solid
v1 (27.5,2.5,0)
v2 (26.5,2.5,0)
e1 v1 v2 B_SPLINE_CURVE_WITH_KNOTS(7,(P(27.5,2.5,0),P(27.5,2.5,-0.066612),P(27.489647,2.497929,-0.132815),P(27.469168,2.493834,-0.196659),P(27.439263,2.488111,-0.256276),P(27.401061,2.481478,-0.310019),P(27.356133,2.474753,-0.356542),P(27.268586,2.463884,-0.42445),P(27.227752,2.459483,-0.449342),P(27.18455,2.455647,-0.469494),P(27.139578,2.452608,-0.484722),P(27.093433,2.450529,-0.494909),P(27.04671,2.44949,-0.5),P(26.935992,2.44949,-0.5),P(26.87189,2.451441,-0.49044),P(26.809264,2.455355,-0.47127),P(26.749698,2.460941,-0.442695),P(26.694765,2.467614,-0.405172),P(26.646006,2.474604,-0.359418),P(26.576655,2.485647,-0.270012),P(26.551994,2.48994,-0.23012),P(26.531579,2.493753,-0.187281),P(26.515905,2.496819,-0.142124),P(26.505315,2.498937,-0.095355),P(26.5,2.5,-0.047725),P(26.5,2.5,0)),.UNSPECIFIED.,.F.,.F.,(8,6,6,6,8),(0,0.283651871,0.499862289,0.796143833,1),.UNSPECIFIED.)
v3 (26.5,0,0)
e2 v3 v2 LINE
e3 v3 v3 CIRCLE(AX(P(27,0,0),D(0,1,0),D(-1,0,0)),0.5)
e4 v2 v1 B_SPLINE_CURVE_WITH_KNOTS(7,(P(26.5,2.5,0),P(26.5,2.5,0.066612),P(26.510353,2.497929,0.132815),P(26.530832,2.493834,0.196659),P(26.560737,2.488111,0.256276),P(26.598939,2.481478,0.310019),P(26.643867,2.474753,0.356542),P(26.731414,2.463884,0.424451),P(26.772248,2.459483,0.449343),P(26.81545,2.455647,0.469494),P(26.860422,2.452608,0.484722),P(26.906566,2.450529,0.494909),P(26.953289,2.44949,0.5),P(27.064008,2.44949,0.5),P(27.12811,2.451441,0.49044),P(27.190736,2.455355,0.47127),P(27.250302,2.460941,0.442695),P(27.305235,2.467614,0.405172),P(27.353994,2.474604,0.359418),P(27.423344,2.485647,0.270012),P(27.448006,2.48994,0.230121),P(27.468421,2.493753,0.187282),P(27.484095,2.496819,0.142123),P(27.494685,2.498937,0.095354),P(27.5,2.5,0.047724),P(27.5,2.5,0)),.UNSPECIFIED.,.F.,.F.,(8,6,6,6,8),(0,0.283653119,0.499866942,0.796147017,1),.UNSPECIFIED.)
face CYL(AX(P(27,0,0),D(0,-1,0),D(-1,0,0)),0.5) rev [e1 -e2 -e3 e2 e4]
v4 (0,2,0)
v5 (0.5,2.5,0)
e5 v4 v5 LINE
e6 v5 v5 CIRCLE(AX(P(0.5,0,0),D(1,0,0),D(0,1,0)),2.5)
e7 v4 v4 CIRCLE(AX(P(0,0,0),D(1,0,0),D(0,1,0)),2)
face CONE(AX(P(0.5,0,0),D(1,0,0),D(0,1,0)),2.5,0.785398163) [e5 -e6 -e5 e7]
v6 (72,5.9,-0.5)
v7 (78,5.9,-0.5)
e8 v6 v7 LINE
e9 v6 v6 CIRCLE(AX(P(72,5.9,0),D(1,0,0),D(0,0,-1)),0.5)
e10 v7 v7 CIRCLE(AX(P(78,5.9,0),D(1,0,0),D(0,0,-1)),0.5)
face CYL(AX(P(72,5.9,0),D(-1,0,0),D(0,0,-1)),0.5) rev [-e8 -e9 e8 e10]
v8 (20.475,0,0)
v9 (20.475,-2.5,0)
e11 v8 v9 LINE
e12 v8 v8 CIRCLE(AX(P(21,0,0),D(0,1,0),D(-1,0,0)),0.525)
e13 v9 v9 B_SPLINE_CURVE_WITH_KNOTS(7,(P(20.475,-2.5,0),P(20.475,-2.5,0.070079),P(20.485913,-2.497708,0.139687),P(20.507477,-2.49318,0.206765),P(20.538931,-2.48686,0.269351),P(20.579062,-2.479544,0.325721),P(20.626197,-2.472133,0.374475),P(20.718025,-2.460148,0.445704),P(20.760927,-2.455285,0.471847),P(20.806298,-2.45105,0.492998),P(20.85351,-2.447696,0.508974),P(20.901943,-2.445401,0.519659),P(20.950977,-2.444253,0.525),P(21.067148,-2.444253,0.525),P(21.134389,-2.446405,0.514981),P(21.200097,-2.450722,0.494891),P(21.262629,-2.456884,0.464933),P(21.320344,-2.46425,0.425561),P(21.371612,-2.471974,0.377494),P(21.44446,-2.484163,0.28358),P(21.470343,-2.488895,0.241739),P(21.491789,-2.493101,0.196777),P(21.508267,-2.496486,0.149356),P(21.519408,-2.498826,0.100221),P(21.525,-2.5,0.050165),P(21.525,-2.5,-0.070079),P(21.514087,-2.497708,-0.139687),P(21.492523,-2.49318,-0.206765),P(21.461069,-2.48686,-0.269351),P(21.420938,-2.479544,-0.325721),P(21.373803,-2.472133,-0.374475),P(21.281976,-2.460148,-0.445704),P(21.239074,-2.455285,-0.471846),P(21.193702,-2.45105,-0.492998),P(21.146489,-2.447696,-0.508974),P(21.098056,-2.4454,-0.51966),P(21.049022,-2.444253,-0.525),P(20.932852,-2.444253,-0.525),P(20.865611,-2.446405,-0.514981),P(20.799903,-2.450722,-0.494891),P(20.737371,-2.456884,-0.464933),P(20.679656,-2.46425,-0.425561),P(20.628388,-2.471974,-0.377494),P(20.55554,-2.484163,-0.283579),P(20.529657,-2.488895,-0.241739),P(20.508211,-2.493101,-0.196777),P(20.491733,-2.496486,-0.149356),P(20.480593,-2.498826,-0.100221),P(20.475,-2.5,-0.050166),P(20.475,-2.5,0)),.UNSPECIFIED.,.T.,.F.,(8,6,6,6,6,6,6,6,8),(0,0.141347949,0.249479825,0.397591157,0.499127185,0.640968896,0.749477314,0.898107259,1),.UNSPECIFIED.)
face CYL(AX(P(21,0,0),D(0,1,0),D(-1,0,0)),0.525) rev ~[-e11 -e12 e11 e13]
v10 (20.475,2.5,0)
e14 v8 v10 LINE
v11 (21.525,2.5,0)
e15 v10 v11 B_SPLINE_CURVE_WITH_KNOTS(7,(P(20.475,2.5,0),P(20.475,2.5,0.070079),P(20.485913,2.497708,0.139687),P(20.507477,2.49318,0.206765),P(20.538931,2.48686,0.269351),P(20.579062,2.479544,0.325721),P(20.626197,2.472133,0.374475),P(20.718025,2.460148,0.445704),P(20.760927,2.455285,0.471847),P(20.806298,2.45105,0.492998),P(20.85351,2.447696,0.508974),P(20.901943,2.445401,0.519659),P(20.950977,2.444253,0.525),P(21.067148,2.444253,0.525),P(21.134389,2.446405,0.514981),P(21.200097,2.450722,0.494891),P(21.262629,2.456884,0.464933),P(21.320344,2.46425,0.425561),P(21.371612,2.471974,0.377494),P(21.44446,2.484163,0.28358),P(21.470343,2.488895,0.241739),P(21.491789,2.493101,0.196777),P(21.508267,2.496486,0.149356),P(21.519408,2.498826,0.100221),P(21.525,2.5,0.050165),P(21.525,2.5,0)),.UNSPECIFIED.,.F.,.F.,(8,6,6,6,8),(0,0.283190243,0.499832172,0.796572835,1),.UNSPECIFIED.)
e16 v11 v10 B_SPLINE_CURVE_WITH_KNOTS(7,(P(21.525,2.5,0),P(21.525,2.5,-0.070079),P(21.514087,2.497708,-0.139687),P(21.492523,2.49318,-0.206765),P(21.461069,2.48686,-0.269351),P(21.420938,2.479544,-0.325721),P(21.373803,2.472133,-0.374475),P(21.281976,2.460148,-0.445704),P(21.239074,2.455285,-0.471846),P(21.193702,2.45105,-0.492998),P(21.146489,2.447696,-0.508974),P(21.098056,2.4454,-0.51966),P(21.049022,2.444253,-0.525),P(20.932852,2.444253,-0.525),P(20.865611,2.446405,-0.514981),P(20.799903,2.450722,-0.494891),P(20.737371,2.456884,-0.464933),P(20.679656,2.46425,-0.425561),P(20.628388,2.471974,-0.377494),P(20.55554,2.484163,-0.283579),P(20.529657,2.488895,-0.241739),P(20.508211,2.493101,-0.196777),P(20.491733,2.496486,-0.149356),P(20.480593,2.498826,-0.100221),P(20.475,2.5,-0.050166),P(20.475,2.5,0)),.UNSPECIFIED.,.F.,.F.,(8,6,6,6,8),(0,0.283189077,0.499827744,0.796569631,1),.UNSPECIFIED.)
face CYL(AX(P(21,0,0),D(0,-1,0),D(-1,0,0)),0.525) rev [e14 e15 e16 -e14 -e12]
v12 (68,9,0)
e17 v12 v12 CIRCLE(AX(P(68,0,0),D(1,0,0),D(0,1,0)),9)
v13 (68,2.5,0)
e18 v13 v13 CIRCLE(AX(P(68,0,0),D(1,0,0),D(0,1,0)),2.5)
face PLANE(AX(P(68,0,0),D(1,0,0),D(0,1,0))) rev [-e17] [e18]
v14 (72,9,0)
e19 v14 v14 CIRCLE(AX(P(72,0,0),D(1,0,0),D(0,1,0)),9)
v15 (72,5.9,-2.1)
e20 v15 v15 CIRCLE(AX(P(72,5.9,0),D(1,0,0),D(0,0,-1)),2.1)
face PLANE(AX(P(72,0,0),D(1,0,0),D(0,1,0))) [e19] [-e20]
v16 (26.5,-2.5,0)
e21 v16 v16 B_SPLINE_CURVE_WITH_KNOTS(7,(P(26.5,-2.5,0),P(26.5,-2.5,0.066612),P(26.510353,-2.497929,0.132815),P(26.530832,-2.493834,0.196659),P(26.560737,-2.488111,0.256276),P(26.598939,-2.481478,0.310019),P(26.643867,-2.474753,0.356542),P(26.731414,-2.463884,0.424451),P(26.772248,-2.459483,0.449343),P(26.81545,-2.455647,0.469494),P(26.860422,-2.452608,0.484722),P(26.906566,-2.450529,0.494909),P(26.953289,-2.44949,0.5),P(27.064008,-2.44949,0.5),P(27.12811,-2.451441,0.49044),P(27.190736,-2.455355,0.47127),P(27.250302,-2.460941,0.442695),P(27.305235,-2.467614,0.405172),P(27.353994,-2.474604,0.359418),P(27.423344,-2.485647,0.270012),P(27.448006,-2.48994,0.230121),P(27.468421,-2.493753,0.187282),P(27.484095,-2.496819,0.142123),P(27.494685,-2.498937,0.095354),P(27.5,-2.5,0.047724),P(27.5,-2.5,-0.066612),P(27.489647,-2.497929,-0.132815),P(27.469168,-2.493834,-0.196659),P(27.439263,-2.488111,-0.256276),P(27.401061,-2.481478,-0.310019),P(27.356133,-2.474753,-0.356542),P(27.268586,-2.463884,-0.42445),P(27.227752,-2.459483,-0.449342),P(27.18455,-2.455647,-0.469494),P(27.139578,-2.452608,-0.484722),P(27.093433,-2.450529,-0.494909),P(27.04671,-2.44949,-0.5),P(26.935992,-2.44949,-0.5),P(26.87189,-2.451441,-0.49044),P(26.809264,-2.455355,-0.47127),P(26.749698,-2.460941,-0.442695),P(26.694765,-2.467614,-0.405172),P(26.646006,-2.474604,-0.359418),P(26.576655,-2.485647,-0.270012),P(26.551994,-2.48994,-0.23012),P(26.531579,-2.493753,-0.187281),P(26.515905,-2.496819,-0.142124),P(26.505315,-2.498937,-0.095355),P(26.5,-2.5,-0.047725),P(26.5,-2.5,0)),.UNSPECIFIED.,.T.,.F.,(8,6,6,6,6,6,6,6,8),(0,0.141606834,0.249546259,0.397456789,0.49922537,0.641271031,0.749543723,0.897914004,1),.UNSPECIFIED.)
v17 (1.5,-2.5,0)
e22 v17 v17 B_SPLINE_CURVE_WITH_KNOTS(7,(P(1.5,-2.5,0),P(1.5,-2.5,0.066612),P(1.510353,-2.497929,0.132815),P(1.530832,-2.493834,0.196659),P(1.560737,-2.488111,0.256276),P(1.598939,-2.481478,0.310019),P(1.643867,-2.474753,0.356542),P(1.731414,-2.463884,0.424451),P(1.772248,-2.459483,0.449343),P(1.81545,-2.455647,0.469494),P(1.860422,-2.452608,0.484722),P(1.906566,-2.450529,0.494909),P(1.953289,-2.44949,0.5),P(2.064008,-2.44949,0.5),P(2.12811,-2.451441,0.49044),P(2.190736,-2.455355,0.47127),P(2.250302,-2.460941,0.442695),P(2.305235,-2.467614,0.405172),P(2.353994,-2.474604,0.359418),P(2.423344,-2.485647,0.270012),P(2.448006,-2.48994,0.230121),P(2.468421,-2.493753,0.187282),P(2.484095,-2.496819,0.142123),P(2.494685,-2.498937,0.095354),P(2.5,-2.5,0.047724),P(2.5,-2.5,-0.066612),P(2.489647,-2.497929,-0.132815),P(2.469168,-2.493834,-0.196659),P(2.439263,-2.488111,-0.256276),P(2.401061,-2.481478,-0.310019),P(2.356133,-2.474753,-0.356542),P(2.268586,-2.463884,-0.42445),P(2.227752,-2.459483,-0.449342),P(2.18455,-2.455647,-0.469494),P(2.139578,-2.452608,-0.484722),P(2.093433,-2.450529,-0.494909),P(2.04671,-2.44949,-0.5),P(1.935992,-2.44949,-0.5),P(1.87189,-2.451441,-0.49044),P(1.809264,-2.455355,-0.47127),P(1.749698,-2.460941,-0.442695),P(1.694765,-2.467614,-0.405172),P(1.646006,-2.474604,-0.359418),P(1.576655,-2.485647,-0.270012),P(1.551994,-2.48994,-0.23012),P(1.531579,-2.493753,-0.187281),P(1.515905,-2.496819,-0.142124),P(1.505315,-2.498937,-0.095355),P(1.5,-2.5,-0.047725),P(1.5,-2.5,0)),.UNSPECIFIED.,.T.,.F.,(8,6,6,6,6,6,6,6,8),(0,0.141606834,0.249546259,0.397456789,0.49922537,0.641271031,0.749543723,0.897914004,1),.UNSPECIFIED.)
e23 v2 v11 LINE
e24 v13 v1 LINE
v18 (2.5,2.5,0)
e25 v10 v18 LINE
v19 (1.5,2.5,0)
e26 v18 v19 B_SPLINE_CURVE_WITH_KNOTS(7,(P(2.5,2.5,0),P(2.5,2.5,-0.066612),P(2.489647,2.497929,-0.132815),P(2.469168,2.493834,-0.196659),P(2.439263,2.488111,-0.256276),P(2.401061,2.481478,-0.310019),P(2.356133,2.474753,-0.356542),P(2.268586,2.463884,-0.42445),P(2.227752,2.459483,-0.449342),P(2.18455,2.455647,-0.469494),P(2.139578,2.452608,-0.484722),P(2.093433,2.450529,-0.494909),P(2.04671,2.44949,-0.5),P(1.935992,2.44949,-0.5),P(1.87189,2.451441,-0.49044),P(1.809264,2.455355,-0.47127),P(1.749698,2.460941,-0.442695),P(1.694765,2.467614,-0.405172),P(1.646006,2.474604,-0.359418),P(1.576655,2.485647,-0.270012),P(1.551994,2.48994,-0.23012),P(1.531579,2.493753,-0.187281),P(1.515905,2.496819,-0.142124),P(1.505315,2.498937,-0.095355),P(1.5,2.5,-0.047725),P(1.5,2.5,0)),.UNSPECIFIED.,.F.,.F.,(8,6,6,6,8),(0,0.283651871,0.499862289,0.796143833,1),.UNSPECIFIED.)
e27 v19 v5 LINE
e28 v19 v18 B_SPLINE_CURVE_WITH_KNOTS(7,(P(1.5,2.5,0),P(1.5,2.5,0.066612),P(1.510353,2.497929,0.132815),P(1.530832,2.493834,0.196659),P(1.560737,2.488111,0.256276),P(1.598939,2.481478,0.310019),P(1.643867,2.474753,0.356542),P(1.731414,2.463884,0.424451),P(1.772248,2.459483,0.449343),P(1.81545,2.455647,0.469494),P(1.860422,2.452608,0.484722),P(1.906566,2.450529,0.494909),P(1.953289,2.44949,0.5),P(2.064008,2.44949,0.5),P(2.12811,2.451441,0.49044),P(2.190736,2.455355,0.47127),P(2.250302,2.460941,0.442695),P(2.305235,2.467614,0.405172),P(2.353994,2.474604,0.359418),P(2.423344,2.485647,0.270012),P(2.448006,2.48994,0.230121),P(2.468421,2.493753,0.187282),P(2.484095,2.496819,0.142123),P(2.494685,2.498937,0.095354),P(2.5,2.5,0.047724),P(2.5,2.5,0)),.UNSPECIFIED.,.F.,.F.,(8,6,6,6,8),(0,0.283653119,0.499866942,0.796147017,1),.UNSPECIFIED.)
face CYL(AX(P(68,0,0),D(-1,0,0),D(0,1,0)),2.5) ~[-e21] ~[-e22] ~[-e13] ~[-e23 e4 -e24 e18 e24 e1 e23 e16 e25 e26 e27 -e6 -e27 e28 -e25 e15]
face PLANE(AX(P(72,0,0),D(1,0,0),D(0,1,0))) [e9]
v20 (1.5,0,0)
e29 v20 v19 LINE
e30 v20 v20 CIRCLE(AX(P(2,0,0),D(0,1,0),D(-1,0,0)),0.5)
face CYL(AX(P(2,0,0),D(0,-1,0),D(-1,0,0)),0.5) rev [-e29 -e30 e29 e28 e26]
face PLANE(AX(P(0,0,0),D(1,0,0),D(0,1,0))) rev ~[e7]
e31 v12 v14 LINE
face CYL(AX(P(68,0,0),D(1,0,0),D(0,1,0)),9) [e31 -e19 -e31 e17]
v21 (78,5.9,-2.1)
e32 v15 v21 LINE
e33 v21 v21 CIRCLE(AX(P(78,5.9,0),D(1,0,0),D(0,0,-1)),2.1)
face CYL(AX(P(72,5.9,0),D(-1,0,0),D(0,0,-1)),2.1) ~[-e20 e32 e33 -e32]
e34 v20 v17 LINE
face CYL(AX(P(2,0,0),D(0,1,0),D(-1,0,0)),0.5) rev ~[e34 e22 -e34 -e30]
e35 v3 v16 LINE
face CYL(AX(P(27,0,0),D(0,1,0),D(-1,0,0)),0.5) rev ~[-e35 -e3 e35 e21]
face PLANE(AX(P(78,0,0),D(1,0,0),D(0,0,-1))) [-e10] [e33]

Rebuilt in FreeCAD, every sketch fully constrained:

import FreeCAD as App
import Part
import Sketcher
from FreeCAD import Vector
Q = App.Units.Quantity


def edges_at(feature, points):
    """Names of the edges that pass closest to the given points."""
    edges = feature.Shape.Edges
    near = lambda p: min(range(len(edges)), key=lambda i: edges[i].distToShape(Part.Vertex(*p))[0])
    return sorted({f"Edge{near(p) + 1}" for p in points})


def add_polygon(sketch, points):
    """Adds a closed chain of lines whose ends are joined by coincident constraints."""
    first, n = sketch.GeometryCount, len(points)
    for a, b in zip(points, points[1:] + points[:1]):
        sketch.addGeometry(Part.LineSegment(App.Vector(*a, 0), App.Vector(*b, 0)), False)
    for i in range(n):
        sketch.addConstraint(Sketcher.Constraint("Coincident", first + i, 2, first + (i + 1) % n, 1))

doc = App.newDocument("Part")
params = doc.addObject("Spreadsheet::Sheet", "Params")
for row, (alias, value) in enumerate([
    ("sketch1_width", "72 mm"),
    ("sketch1_width2", "4 mm"),
    ("sketch1_height", "9 mm"),
    ("sketch1_height2", "2.5 mm"),
    ("revolution_angle", "360 deg"),
    ("chamfer_size", "0.5 mm"),
    ("sketch2_diameter", "1 mm"),
    ("sketch2_diameter2", "4.2 mm"),
    ("pad1_length", "6 mm"),
    ("sketch3_diameter", "1 mm"),
    ("pocket1_length", "10 mm"),
    ("sketch4_diameter", "1 mm"),
    ("pocket2_length", "10 mm"),
    ("sketch5_diameter", "1.05 mm"),
    ("pocket3_length", "10 mm"),
], start=1):
    params.set(f"A{row}", alias)
    params.set(f"B{row}", "=" + value)
    params.setAlias(f"B{row}", alias)

body = doc.addObject("PartDesign::Body", "Body")

# Sketch on XY plane
sketch1 = body.newObject("Sketcher::SketchObject", "Sketch")
sketch1.AttachmentSupport = (doc.getObject("XY_Plane"), [""])
sketch1.MapMode = "FlatFace"
add_polygon(sketch1, [(0, 2.5), (0, 0), (72, 0), (72, 9), (68, 9), (68, 2.5)])  # lines 0-5
sketch1.addConstraint([
    Sketcher.Constraint("Vertical", 0),
    Sketcher.Constraint("Horizontal", 1),
    Sketcher.Constraint("Vertical", 2),
    Sketcher.Constraint("Horizontal", 3),
    Sketcher.Constraint("Vertical", 4),
    Sketcher.Constraint("Horizontal", 5),
    Sketcher.Constraint("Coincident", 0, 2, -1, 1),
    Sketcher.Constraint("DistanceX", 1, 1, 1, 2, Q("72 mm")),
    Sketcher.Constraint("DistanceX", 3, 2, 3, 1, Q("4 mm")),
    Sketcher.Constraint("DistanceY", 2, 1, 2, 2, Q("9 mm")),
    Sketcher.Constraint("DistanceY", 0, 2, 0, 1, Q("2.5 mm")),
])
sketch1.setExpression("Constraints[13]", "Params.sketch1_width")
sketch1.setExpression("Constraints[14]", "Params.sketch1_width2")
sketch1.setExpression("Constraints[15]", "Params.sketch1_height")
sketch1.setExpression("Constraints[16]", "Params.sketch1_height2")
revolution = body.newObject("PartDesign::Revolution", "Revolution")
revolution.Profile = sketch1
revolution.ReferenceAxis = (sketch1, ["H_Axis"])
revolution.setExpression("Angle", "Params.revolution_angle")
doc.recompute()

chamfer = body.newObject("PartDesign::Chamfer", "Chamfer")
chamfer.Base = (revolution, edges_at(revolution, [(0, -2.5, 0)]))
chamfer.setExpression("Size", "Params.chamfer_size")

# Sketch on YZ plane
sketch2 = body.newObject("Sketcher::SketchObject", "Sketch001")
sketch2.AttachmentSupport = (doc.getObject("YZ_Plane"), [""])
sketch2.MapMode = "FlatFace"
sketch2.AttachmentOffset = App.Placement(Vector(0, 0, 72), App.Rotation())
sketch2.addGeometry([
    Part.Circle(Vector(5.9, 0, 0), Vector(0, 0, 1), 2.1),
    Part.Circle(Vector(5.9, 0, 0), Vector(0, 0, 1), 0.5),
], False)
sketch2.addConstraint([
    Sketcher.Constraint("Coincident", 1, 3, 0, 3),
    Sketcher.Constraint("PointOnObject", 0, 3, -1),
    Sketcher.Constraint("Diameter", 1, Q("1 mm")),
    Sketcher.Constraint("Diameter", 0, Q("4.2 mm")),
    Sketcher.Constraint("DistanceX", -1, 1, 0, 3, Q("5.9 mm")),
])
sketch2.setExpression("Constraints[2]", "Params.sketch2_diameter")
sketch2.setExpression("Constraints[3]", "Params.sketch2_diameter2")
pad1 = body.newObject("PartDesign::Pad", "Pad")
pad1.Profile = sketch2
pad1.setExpression("Length", "Params.pad1_length")

# Sketch on XZ plane
sketch3 = body.newObject("Sketcher::SketchObject", "Sketch002")
sketch3.AttachmentSupport = (doc.getObject("XZ_Plane"), [""])
sketch3.MapMode = "FlatFace"
sketch3.addGeometry(Part.Circle(Vector(2, 0, 0), Vector(0, 0, 1), 0.5), False)
sketch3.addConstraint([
    Sketcher.Constraint("PointOnObject", 0, 3, -1),
    Sketcher.Constraint("Diameter", 0, Q("1 mm")),
    Sketcher.Constraint("DistanceX", -1, 1, 0, 3, Q("2 mm")),
])
sketch3.setExpression("Constraints[1]", "Params.sketch3_diameter")
pocket1 = body.newObject("PartDesign::Pocket", "Pocket")
pocket1.Profile = sketch3
pocket1.setExpression("Length", "Params.pocket1_length")
pocket1.Midplane = True

# Sketch on XZ plane
sketch4 = body.newObject("Sketcher::SketchObject", "Sketch003")
sketch4.AttachmentSupport = (doc.getObject("XZ_Plane"), [""])
sketch4.MapMode = "FlatFace"
sketch4.addGeometry(Part.Circle(Vector(27, 0, 0), Vector(0, 0, 1), 0.5), False)
sketch4.addConstraint([
    Sketcher.Constraint("PointOnObject", 0, 3, -1),
    Sketcher.Constraint("Diameter", 0, Q("1 mm")),
    Sketcher.Constraint("DistanceX", -1, 1, 0, 3, Q("27 mm")),
])
sketch4.setExpression("Constraints[1]", "Params.sketch4_diameter")
pocket2 = body.newObject("PartDesign::Pocket", "Pocket001")
pocket2.Profile = sketch4
pocket2.setExpression("Length", "Params.pocket2_length")
pocket2.Midplane = True

# Sketch on XZ plane
sketch5 = body.newObject("Sketcher::SketchObject", "Sketch004")
sketch5.AttachmentSupport = (doc.getObject("XZ_Plane"), [""])
sketch5.MapMode = "FlatFace"
sketch5.addGeometry(Part.Circle(Vector(21, 0, 0), Vector(0, 0, 1), 0.525), False)
sketch5.addConstraint([
    Sketcher.Constraint("PointOnObject", 0, 3, -1),
    Sketcher.Constraint("Diameter", 0, Q("1.05 mm")),
    Sketcher.Constraint("DistanceX", -1, 1, 0, 3, Q("21 mm")),
])
sketch5.setExpression("Constraints[1]", "Params.sketch5_diameter")
pocket3 = body.newObject("PartDesign::Pocket", "Pocket002")
pocket3.Profile = sketch5
pocket3.setExpression("Length", "Params.pocket3_length")
pocket3.Midplane = True

doc.recompute()
